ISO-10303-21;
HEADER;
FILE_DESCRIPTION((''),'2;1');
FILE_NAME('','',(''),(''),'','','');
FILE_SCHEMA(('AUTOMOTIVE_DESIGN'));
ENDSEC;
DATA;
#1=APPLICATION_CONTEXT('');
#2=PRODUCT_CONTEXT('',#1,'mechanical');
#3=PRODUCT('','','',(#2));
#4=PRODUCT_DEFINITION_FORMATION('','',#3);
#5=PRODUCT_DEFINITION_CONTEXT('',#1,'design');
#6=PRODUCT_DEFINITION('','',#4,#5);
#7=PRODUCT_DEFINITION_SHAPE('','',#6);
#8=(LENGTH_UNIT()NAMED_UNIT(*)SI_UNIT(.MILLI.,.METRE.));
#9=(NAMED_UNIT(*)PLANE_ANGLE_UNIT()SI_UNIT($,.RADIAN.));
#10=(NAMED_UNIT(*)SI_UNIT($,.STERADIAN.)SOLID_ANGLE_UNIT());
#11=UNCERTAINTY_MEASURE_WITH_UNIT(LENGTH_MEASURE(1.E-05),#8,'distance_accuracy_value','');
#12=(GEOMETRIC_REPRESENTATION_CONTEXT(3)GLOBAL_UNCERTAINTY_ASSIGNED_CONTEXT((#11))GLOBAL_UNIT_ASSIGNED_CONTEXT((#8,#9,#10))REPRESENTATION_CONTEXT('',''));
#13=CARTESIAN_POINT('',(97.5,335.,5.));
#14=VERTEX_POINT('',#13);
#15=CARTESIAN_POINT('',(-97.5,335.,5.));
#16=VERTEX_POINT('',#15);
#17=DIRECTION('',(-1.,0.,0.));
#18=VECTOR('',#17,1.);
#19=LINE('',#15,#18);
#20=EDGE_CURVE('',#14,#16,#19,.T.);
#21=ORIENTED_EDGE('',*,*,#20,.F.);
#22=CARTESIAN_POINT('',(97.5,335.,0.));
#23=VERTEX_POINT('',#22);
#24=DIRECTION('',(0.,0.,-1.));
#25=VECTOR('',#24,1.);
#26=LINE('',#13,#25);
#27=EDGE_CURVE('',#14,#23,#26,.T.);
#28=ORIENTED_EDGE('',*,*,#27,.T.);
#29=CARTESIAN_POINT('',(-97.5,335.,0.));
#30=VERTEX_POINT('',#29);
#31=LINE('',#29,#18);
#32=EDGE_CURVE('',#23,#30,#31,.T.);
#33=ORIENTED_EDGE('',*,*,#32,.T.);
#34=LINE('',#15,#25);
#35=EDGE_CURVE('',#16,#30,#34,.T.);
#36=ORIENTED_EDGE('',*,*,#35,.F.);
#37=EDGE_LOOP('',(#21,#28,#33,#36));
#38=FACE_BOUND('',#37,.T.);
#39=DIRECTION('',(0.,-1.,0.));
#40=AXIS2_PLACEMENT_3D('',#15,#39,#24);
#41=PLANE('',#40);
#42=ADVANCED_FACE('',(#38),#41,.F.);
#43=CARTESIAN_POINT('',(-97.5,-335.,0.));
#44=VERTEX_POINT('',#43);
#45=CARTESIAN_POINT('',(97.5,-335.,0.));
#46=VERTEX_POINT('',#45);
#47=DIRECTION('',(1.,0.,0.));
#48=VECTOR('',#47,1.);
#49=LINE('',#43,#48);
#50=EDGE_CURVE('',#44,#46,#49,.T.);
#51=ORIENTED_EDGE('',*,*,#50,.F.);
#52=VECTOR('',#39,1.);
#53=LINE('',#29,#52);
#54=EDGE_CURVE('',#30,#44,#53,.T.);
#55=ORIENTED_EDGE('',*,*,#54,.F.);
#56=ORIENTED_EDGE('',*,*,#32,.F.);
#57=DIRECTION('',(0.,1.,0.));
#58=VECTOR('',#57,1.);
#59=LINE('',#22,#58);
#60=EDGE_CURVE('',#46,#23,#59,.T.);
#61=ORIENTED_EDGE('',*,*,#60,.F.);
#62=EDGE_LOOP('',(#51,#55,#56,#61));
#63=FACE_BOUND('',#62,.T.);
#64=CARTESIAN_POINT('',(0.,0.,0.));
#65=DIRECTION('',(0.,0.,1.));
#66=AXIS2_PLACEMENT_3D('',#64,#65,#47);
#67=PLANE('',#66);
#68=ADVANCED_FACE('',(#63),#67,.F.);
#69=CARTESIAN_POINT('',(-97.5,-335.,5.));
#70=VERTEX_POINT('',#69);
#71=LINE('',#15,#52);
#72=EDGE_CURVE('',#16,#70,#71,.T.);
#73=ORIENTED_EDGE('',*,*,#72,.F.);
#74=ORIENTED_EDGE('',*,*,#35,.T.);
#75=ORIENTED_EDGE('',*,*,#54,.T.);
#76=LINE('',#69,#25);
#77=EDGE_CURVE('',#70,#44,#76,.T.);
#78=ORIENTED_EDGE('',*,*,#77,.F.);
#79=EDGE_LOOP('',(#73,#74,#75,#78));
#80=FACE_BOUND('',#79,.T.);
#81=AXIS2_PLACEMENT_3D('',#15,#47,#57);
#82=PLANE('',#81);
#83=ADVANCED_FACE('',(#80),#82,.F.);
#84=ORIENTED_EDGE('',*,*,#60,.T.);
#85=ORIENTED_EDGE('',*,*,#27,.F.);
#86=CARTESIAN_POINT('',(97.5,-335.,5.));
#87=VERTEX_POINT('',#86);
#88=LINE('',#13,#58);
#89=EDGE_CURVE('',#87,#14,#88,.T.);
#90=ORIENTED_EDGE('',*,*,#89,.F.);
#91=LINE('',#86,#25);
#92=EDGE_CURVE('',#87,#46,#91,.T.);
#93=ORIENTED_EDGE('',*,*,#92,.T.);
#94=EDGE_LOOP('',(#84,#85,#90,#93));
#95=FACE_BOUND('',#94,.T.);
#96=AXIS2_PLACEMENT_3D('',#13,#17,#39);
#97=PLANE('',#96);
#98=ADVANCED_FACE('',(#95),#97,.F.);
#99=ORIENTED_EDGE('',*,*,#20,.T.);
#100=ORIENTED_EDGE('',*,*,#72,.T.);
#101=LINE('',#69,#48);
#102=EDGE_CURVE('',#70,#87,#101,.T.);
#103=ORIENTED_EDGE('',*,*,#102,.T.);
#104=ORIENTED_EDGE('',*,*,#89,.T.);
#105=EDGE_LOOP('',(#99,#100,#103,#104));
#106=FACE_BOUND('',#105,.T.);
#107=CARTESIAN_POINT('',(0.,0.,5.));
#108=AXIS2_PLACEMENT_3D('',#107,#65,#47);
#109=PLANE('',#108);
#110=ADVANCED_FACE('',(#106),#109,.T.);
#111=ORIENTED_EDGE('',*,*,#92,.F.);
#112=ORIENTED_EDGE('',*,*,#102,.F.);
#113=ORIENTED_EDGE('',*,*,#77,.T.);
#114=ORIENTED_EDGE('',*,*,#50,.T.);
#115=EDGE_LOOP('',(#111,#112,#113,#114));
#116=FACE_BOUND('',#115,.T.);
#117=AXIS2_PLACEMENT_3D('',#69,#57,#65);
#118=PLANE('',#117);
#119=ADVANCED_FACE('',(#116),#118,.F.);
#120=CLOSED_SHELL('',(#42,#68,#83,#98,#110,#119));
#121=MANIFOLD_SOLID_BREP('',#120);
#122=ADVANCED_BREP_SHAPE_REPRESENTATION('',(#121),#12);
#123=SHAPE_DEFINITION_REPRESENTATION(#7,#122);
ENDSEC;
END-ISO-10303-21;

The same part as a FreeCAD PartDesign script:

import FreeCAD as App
import Part
import Sketcher

V = App.Vector


def add_polygon(sketch, points):
    """Adds a closed chain of lines whose ends are joined by coincident constraints."""
    first, n = sketch.GeometryCount, len(points)
    for a, b in zip(points, points[1:] + points[:1]):
        sketch.addGeometry(Part.LineSegment(App.Vector(*a, 0), App.Vector(*b, 0)), False)
    for i in range(n):
        sketch.addConstraint(Sketcher.Constraint("Coincident", first + i, 2, first + (i + 1) % n, 1))

doc = App.newDocument("Part")
body = doc.addObject("PartDesign::Body", "Body")

# Sketch on XY plane
sketch1 = body.newObject("Sketcher::SketchObject", "Sketch")
sketch1.AttachmentSupport = (doc.getObject("XY_Plane"), [""])
sketch1.MapMode = "FlatFace"
add_polygon(sketch1, [(-97.5, 335), (-97.5, -335), (97.5, -335), (97.5, 335)])  # lines 0-3
sketch1.addConstraint(Sketcher.Constraint("Vertical", 0))
sketch1.addConstraint(Sketcher.Constraint("Horizontal", 1))
sketch1.addConstraint(Sketcher.Constraint("Vertical", 2))
sketch1.addConstraint(Sketcher.Constraint("Horizontal", 3))
sketch1.addConstraint(Sketcher.Constraint("Symmetric", 0, 2, 2, 2, -1, 1))
sketch1.addConstraint(Sketcher.Constraint("DistanceX", 1, 1, 1, 2, 195.0))
sketch1.addConstraint(Sketcher.Constraint("DistanceY", 0, 2, 0, 1, 670.0))
pad1 = body.newObject("PartDesign::Pad", "Pad")
pad1.Profile = sketch1
pad1.Length = 5

doc.recompute()
